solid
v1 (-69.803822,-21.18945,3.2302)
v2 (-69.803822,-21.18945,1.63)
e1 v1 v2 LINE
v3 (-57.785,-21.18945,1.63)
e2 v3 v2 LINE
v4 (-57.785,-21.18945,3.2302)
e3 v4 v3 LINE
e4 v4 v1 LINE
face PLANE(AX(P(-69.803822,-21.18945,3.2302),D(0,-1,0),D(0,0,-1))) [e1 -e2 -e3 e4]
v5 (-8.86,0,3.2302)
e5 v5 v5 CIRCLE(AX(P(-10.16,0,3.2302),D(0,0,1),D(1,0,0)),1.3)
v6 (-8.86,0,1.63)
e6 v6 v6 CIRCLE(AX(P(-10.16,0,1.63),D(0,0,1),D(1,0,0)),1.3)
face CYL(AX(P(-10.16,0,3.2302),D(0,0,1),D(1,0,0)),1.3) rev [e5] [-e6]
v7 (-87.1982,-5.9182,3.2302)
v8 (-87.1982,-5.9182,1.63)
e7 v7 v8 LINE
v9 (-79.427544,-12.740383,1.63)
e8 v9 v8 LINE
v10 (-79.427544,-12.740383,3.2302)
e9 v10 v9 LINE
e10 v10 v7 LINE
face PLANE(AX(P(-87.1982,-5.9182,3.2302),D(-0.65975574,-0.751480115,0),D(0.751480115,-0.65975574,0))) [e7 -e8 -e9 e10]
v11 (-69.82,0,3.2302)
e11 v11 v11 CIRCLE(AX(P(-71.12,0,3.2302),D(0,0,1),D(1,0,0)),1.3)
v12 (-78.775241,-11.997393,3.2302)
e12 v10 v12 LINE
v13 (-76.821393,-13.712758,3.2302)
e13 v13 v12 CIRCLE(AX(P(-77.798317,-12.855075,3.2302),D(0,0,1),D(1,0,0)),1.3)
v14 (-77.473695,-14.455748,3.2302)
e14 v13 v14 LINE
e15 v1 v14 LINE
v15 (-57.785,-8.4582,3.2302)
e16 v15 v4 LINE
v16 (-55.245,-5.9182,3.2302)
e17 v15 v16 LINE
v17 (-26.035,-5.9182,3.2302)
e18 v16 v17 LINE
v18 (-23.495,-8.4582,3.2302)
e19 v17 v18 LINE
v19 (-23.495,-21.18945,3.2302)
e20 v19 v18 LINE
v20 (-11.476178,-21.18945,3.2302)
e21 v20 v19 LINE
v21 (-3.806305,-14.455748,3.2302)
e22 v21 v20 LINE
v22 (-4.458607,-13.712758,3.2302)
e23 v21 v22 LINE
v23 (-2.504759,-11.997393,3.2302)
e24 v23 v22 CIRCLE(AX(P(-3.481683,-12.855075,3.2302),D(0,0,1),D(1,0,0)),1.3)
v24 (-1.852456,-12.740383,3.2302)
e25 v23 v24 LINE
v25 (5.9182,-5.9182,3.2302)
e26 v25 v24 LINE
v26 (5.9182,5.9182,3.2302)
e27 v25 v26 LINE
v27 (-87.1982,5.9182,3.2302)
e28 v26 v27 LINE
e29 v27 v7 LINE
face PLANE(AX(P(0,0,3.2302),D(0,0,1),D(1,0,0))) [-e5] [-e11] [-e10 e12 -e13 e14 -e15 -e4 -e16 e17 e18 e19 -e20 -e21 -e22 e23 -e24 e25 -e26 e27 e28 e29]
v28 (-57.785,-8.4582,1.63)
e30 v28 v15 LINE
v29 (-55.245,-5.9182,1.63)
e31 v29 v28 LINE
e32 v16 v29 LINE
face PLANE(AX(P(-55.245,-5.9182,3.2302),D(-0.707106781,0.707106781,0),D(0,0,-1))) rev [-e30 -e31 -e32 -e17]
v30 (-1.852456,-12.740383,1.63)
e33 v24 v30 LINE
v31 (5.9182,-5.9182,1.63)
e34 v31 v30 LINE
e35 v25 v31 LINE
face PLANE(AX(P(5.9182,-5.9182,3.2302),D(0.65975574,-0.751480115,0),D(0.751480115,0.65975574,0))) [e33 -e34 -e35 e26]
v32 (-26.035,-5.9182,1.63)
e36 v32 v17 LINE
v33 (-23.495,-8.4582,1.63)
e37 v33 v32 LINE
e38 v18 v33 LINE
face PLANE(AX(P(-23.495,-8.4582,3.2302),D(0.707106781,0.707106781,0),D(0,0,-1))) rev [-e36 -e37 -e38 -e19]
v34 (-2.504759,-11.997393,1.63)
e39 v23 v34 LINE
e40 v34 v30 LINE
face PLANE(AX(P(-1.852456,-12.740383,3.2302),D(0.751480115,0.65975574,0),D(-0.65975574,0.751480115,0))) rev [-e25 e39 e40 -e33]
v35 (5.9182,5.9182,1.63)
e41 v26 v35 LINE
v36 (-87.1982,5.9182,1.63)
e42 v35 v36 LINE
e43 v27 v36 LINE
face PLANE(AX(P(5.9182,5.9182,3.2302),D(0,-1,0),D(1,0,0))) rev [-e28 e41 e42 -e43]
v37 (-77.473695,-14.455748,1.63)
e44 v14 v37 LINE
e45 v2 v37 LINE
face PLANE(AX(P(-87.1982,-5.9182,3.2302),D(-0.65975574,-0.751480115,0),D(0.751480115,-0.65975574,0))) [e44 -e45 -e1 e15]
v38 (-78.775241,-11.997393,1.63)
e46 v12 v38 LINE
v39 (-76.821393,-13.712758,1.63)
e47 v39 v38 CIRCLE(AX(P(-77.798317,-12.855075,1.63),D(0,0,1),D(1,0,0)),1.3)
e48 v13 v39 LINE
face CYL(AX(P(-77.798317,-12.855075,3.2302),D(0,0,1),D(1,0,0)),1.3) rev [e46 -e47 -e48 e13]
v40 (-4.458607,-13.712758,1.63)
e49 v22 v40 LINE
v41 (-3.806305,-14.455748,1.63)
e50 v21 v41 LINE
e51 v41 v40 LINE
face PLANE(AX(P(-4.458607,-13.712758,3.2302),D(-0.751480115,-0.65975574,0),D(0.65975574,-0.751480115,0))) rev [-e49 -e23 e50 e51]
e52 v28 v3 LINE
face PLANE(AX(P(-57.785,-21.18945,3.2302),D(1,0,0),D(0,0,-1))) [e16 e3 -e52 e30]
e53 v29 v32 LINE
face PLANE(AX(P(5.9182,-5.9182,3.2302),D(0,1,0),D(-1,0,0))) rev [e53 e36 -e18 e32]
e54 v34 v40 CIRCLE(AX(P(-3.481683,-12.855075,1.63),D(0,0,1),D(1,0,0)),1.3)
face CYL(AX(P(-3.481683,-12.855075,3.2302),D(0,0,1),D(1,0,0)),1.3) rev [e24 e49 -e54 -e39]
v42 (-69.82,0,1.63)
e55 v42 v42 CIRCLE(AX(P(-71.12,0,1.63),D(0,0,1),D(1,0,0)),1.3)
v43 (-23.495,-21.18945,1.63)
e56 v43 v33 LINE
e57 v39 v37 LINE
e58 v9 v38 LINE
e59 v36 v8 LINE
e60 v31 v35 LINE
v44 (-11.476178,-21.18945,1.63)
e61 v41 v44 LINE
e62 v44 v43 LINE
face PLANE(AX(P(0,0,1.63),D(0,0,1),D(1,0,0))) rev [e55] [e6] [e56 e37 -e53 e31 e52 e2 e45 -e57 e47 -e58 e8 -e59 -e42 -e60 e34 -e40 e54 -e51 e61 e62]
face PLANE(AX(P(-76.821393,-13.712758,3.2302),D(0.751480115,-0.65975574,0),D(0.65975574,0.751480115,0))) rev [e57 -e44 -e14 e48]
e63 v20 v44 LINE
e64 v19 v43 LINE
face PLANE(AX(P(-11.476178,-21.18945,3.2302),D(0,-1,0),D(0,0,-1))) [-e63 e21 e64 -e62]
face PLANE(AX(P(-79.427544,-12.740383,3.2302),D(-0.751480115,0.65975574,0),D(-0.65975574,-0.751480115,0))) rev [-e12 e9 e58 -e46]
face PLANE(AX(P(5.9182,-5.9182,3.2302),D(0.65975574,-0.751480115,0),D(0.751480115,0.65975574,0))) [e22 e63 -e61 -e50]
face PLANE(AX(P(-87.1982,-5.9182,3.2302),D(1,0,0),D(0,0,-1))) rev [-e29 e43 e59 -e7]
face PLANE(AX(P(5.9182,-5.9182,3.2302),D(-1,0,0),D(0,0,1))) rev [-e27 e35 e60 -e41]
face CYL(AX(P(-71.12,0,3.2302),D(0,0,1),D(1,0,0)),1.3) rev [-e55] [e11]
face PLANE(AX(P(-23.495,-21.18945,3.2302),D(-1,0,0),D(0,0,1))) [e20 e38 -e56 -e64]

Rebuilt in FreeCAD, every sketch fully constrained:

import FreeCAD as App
import Part
import Sketcher
from FreeCAD import Vector
Q = App.Units.Quantity


def edges_at(feature, points):
    """Names of the edges that pass closest to the given points."""
    edges = feature.Shape.Edges
    near = lambda p: min(range(len(edges)), key=lambda i: edges[i].distToShape(Part.Vertex(*p))[0])
    return sorted({f"Edge{near(p) + 1}" for p in points})


def add_polygon(sketch, points):
    """Adds a closed chain of lines whose ends are joined by coincident constraints."""
    first, n = sketch.GeometryCount, len(points)
    for a, b in zip(points, points[1:] + points[:1]):
        sketch.addGeometry(Part.LineSegment(App.Vector(*a, 0), App.Vector(*b, 0)), False)
    for i in range(n):
        sketch.addConstraint(Sketcher.Constraint("Coincident", first + i, 2, first + (i + 1) % n, 1))

doc = App.newDocument("Part")
body = doc.addObject("PartDesign::Body", "Body")

sketch1 = body.newObject("Sketcher::SketchObject", "Sketch")
sketch1.AttachmentSupport = (doc.getObject("XY_Plane"), [""])
sketch1.MapMode = "FlatFace"
sketch1.AttachmentOffset = App.Placement(Vector(0, 0, 1.63), App.Rotation())
add_polygon(sketch1, [(-87, 6), (-87, -6), (6, -6), (6, 6)])
sketch1.addConstraint(Sketcher.Constraint("Vertical", 0))
sketch1.addConstraint(Sketcher.Constraint("Horizontal", 1))
sketch1.addConstraint(Sketcher.Constraint("Vertical", 2))
sketch1.addConstraint(Sketcher.Constraint("Horizontal", 3))
sketch1.addConstraint(Sketcher.Constraint("DistanceX", 1, 1, 1, 2, Q("3.666 in")))
sketch1.addConstraint(Sketcher.Constraint("DistanceY", 0, 2, 0, 1, Q("0.466 in")))
sketch1.addConstraint(Sketcher.Constraint("DistanceX", 0, 2, -1, 1, Q("3.433 in")))
sketch1.addConstraint(Sketcher.Constraint("DistanceY", 0, 2, -1, 1, Q("0.233 in")))
pad1 = body.newObject("PartDesign::Pad", "Pad")
pad1.Profile = sketch1
pad1.Length = Q("0.063 in")

sketch2 = body.newObject("Sketcher::SketchObject", "Sketch001")
sketch2.AttachmentSupport = (doc.getObject("XY_Plane"), [""])
sketch2.MapMode = "FlatFace"
sketch2.AttachmentOffset = App.Placement(Vector(0, 0, 1.63), App.Rotation())
add_polygon(sketch2, [(-70, -21), (-87, -6), (-58, -6), (-58, -21)])
add_polygon(sketch2, [(-23, -6), (6, -6), (-11, -21), (-23, -21)])
sketch2.addConstraint(Sketcher.Constraint("Horizontal", 1))
sketch2.addConstraint(Sketcher.Constraint("Vertical", 2))
sketch2.addConstraint(Sketcher.Constraint("Horizontal", 3))
sketch2.addConstraint(Sketcher.Constraint("Horizontal", 4))
sketch2.addConstraint(Sketcher.Constraint("Horizontal", 6))
sketch2.addConstraint(Sketcher.Constraint("Vertical", 7))
sketch2.addConstraint(Sketcher.Constraint("Horizontal", 1, 2, 4, 2))
sketch2.addConstraint(Sketcher.Constraint("Horizontal", 3, 2, 5, 2))
sketch2.addConstraint(Sketcher.Constraint("Equal", 1, 4))
sketch2.addConstraint(Sketcher.Constraint("Equal", 3, 6))
sketch2.addConstraint(Sketcher.Constraint("DistanceX", 1, 1, 1, 2, Q("1.158 in")))
sketch2.addConstraint(Sketcher.Constraint("DistanceX", 2, 2, 6, 2, Q("1.35 in")))
sketch2.addConstraint(Sketcher.Constraint("DistanceX", 0, 2, -1, 1, Q("3.433 in")))
sketch2.addConstraint(Sketcher.Constraint("DistanceY", 0, 2, -1, 1, Q("0.233 in")))
sketch2.addConstraint(Sketcher.Constraint("DistanceX", 3, 2, 3, 1, Q("12.018822 mm")))
sketch2.addConstraint(Sketcher.Constraint("DistanceY", 2, 2, 2, 1, Q("15.27125 mm")))
pad2 = body.newObject("PartDesign::Pad", "Pad001")
pad2.Profile = sketch2
pad2.Length = Q("0.063 in")
doc.recompute()

chamfer = body.newObject("PartDesign::Chamfer", "Chamfer")
chamfer.Base = (pad2, edges_at(pad2, [(-57.785, -5.918, 2.43), (-23.495, -5.918, 2.43)]))
chamfer.Size = Q("0.1 in")

sketch3 = body.newObject("Sketcher::SketchObject", "Sketch002")
sketch3.AttachmentSupport = (doc.getObject("XY_Plane"), [""])
sketch3.MapMode = "FlatFace"
sketch3.AttachmentOffset = App.Placement(Vector(0, 0, 3.2302), App.Rotation())
sketch3.addGeometry(Part.Circle(Vector(-10.2, 0, 0), Vector(0, 0, 1), 1.3), False)
sketch3.addGeometry(Part.Circle(Vector(-71.1, 0, 0), Vector(0, 0, 1), 1.3), False)
sketch3.addGeometry(Part.Circle(Vector(-77.8, -12.9, 0), Vector(0, 0, 1), 1.3), False)
sketch3.addGeometry(Part.Circle(Vector(-3.5, -12.9, 0), Vector(0, 0, 1), 1.3), False)
sketch3.addConstraint(Sketcher.Constraint("Equal", 0, 1))
sketch3.addConstraint(Sketcher.Constraint("Equal", 1, 2))
sketch3.addConstraint(Sketcher.Constraint("Equal", 2, 3))
sketch3.addConstraint(Sketcher.Constraint("PointOnObject", 0, 3, -1))
sketch3.addConstraint(Sketcher.Constraint("PointOnObject", 1, 3, -1))
sketch3.addConstraint(Sketcher.Constraint("Horizontal", 2, 3, 3, 3))
sketch3.addConstraint(Sketcher.Constraint("DistanceX", 0, 3, -1, 1, Q("0.4 in")))
sketch3.addConstraint(Sketcher.Constraint("DistanceX", 1, 3, -1, 1, Q("2.8 in")))
sketch3.addConstraint(Sketcher.Constraint("Diameter", 0, Q("2.6 mm")))
sketch3.addConstraint(Sketcher.Constraint("DistanceX", 2, 3, -1, 1, Q("77.798317 mm")))
sketch3.addConstraint(Sketcher.Constraint("DistanceY", 2, 3, -1, 1, Q("12.855075 mm")))
sketch3.addConstraint(Sketcher.Constraint("DistanceX", 3, 3, -1, 1, Q("3.481683 mm")))
doc.recompute()
hole = body.newObject("PartDesign::Hole", "Hole")
hole.Profile = sketch3
hole.ThreadType = "None"
hole.Diameter = 2.6
hole.DepthType = "ThroughAll"

sketch4 = body.newObject("Sketcher::SketchObject", "Sketch003")
sketch4.AttachmentSupport = (doc.getObject("XY_Plane"), [""])
sketch4.MapMode = "FlatFace"
sketch4.AttachmentOffset = App.Placement(Vector(0, 0, 1.63), App.Rotation())
add_polygon(sketch4, [(-79.4, -12.7), (-78.8, -12), (-76.8, -13.7), (-77.5, -14.5)])
add_polygon(sketch4, [(-1.9, -12.7), (-3.8, -14.5), (-4.5, -13.7), (-2.5, -12)])
sketch4.addConstraint(Sketcher.Constraint("Perpendicular", 0, 1))
sketch4.addConstraint(Sketcher.Constraint("Perpendicular", 1, 2))
sketch4.addConstraint(Sketcher.Constraint("Perpendicular", 2, 3))
sketch4.addConstraint(Sketcher.Constraint("Perpendicular", 4, 5))
sketch4.addConstraint(Sketcher.Constraint("Perpendicular", 5, 6))
sketch4.addConstraint(Sketcher.Constraint("Perpendicular", 6, 7))
sketch4.addConstraint(Sketcher.Constraint("Horizontal", 2, 2, 4, 2))
sketch4.addConstraint(Sketcher.Constraint("Horizontal", 1, 2, 5, 2))
sketch4.addConstraint(Sketcher.Constraint("Horizontal", 0, 2, 6, 2))
sketch4.addConstraint(Sketcher.Constraint("Equal", 3, 4))
sketch4.addConstraint(Sketcher.Constraint("Distance", 1, Q("2.6 mm")))
sketch4.addConstraint(Sketcher.Constraint("DistanceX", 0, 2, -1, 1, Q("78.775241 mm")))
sketch4.addConstraint(Sketcher.Constraint("DistanceY", 2, 2, -1, 1, Q("14.455748 mm")))
sketch4.addConstraint(Sketcher.Constraint("DistanceX", 6, 2, -1, 1, Q("2.504759 mm")))
sketch4.addConstraint(Sketcher.Constraint("DistanceX", 0, 2, 1, 2, Q("1.953848 mm")))
sketch4.addConstraint(Sketcher.Constraint("DistanceY", 2, 2, 1, 2, Q("0.742991 mm")))
pocket1 = body.newObject("PartDesign::Pocket", "Pocket")
pocket1.Profile = sketch4
pocket1.Type = "ThroughAll"
pocket1.Reversed = True

doc.recompute()
